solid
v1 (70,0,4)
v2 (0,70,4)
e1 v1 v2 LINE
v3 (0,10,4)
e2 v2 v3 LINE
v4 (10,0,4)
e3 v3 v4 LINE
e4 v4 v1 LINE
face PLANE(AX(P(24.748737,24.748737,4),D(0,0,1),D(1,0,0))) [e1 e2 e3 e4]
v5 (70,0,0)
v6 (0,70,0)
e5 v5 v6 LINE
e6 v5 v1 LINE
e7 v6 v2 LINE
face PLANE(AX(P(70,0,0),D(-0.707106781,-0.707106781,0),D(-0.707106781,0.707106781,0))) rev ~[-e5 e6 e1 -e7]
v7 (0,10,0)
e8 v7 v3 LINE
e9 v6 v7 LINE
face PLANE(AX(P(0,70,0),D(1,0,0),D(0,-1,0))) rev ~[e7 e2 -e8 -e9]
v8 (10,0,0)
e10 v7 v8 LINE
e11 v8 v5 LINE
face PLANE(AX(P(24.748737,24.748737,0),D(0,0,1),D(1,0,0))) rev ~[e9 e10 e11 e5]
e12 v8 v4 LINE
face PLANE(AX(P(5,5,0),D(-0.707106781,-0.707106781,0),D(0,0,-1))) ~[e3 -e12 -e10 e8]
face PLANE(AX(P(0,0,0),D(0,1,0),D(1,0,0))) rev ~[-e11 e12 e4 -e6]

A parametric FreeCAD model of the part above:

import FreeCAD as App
import Part
import Sketcher

V = App.Vector
Q = App.Units.Quantity


def edges_at(feature, points):
    """Names of the edges that pass closest to the given points."""
    edges = feature.Shape.Edges
    near = lambda p: min(range(len(edges)), key=lambda i: edges[i].distToShape(Part.Vertex(*p))[0])
    return sorted({f"Edge{near(p) + 1}" for p in points})

doc = App.newDocument("Part")
body = doc.addObject("PartDesign::Body", "Body")

sketch1 = body.newObject("Sketcher::SketchObject", "Sketch")
sketch1.AttachmentSupport = (doc.getObject("XY_Plane"), [""])
sketch1.MapMode = "FlatFace"
sketch1.addGeometry([
    Part.LineSegment(V(0, 70, 0), V(0, 0, 0)),
    Part.LineSegment(V(0, 0, 0), V(70, 0, 0)),
    Part.LineSegment(V(70, 0, 0), V(0, 70, 0)),
], False)
sketch1.addConstraint([
    Sketcher.Constraint("Coincident", 0, 2, 1, 1),
    Sketcher.Constraint("Coincident", 1, 2, 2, 1),
    Sketcher.Constraint("Coincident", 2, 2, 0, 1),
    Sketcher.Constraint("Vertical", 0),
    Sketcher.Constraint("Horizontal", 1),
    Sketcher.Constraint("Coincident", 0, 2, -1, 1),
    Sketcher.Constraint("Equal", 1, 0),
    Sketcher.Constraint("DistanceX", 1, 1, 1, 2, Q("70 mm")),
])
pad1 = body.newObject("PartDesign::Pad", "Pad")
pad1.Profile = sketch1
pad1.Length = 4
doc.recompute()

chamfer = body.newObject("PartDesign::Chamfer", "Chamfer")
chamfer.Base = (pad1, edges_at(pad1, [(0, 0, 2)]))
chamfer.Size = 10

doc.recompute()
